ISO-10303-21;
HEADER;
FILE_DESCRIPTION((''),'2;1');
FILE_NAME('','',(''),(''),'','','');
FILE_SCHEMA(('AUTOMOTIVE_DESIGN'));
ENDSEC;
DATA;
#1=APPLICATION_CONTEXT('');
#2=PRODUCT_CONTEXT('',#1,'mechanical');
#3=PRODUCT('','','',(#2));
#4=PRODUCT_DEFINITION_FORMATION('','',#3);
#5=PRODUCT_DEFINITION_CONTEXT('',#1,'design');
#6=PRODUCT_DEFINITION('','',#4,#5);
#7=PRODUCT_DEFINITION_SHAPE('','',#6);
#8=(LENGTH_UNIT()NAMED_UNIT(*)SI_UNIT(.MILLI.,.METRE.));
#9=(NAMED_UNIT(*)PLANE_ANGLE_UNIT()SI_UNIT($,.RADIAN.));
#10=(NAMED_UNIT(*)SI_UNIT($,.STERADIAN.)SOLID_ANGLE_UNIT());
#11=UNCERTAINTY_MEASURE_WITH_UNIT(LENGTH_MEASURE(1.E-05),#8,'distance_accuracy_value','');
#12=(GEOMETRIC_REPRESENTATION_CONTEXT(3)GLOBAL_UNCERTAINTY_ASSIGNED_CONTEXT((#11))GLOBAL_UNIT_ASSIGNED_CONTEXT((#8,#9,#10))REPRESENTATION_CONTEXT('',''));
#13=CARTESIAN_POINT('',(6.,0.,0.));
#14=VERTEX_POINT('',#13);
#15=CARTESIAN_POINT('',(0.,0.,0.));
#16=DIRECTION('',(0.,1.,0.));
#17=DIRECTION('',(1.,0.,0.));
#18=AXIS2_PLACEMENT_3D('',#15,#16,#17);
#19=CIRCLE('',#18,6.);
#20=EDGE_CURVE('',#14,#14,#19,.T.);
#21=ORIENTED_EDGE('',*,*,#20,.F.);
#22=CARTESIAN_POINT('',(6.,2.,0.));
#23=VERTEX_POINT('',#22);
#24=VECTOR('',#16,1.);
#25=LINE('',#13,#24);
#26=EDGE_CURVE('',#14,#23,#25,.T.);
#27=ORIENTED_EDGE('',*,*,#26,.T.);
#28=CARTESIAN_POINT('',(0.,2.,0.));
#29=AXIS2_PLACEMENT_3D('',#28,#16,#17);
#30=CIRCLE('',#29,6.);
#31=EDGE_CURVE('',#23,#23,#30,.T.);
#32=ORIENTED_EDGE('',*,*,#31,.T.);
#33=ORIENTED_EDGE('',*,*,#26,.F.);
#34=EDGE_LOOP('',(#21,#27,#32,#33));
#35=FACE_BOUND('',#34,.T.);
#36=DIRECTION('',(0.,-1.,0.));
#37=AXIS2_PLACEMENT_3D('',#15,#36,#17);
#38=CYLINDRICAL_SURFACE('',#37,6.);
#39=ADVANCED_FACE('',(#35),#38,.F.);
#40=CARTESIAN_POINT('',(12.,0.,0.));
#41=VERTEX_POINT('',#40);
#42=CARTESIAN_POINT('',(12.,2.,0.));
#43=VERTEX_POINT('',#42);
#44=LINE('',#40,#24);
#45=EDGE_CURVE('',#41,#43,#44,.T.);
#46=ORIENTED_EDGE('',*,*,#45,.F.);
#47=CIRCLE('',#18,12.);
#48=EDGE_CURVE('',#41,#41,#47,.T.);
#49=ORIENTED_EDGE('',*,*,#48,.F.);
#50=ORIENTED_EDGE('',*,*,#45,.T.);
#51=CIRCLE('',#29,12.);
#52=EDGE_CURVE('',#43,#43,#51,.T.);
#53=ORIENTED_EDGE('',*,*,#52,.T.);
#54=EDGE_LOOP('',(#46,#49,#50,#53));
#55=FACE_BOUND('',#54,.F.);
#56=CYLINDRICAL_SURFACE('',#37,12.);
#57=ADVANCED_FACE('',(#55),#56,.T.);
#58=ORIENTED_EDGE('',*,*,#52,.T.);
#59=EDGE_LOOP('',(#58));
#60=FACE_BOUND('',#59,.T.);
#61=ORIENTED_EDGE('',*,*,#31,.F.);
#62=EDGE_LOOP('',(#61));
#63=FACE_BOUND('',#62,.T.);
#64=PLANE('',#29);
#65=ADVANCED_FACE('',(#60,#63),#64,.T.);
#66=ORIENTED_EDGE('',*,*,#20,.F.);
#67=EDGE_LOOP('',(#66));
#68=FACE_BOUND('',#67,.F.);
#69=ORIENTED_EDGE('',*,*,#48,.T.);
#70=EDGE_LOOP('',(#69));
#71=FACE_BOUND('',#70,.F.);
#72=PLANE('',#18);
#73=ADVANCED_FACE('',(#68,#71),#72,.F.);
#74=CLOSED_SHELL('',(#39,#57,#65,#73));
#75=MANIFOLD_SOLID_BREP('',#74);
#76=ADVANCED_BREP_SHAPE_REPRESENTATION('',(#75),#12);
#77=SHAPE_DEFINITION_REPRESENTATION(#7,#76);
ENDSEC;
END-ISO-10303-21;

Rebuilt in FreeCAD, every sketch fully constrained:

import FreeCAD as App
import Part
import Sketcher

V = App.Vector

doc = App.newDocument("Part")
body = doc.addObject("PartDesign::Body", "Body")

# Sketch on XZ plane
sketch1 = body.newObject("Sketcher::SketchObject", "Sketch")
sketch1.AttachmentSupport = (doc.getObject("XZ_Plane"), [""])
sketch1.MapMode = "FlatFace"
sketch1.addGeometry([
    Part.Circle(V(0, 0, 0), V(0, 0, 1), 12),
    Part.Circle(V(0, 0, 0), V(0, 0, 1), 6),
], False)
sketch1.addConstraint([
    Sketcher.Constraint("Coincident", 0, 3, -1, 1),
    Sketcher.Constraint("Coincident", 1, 3, -1, 1),
    Sketcher.Constraint("Diameter", 0, 24.0),
    Sketcher.Constraint("Diameter", 1, 12.0),
])
pad1 = body.newObject("PartDesign::Pad", "Pad")
pad1.Profile = sketch1
pad1.Length = 2
pad1.Reversed = True

doc.recompute()
